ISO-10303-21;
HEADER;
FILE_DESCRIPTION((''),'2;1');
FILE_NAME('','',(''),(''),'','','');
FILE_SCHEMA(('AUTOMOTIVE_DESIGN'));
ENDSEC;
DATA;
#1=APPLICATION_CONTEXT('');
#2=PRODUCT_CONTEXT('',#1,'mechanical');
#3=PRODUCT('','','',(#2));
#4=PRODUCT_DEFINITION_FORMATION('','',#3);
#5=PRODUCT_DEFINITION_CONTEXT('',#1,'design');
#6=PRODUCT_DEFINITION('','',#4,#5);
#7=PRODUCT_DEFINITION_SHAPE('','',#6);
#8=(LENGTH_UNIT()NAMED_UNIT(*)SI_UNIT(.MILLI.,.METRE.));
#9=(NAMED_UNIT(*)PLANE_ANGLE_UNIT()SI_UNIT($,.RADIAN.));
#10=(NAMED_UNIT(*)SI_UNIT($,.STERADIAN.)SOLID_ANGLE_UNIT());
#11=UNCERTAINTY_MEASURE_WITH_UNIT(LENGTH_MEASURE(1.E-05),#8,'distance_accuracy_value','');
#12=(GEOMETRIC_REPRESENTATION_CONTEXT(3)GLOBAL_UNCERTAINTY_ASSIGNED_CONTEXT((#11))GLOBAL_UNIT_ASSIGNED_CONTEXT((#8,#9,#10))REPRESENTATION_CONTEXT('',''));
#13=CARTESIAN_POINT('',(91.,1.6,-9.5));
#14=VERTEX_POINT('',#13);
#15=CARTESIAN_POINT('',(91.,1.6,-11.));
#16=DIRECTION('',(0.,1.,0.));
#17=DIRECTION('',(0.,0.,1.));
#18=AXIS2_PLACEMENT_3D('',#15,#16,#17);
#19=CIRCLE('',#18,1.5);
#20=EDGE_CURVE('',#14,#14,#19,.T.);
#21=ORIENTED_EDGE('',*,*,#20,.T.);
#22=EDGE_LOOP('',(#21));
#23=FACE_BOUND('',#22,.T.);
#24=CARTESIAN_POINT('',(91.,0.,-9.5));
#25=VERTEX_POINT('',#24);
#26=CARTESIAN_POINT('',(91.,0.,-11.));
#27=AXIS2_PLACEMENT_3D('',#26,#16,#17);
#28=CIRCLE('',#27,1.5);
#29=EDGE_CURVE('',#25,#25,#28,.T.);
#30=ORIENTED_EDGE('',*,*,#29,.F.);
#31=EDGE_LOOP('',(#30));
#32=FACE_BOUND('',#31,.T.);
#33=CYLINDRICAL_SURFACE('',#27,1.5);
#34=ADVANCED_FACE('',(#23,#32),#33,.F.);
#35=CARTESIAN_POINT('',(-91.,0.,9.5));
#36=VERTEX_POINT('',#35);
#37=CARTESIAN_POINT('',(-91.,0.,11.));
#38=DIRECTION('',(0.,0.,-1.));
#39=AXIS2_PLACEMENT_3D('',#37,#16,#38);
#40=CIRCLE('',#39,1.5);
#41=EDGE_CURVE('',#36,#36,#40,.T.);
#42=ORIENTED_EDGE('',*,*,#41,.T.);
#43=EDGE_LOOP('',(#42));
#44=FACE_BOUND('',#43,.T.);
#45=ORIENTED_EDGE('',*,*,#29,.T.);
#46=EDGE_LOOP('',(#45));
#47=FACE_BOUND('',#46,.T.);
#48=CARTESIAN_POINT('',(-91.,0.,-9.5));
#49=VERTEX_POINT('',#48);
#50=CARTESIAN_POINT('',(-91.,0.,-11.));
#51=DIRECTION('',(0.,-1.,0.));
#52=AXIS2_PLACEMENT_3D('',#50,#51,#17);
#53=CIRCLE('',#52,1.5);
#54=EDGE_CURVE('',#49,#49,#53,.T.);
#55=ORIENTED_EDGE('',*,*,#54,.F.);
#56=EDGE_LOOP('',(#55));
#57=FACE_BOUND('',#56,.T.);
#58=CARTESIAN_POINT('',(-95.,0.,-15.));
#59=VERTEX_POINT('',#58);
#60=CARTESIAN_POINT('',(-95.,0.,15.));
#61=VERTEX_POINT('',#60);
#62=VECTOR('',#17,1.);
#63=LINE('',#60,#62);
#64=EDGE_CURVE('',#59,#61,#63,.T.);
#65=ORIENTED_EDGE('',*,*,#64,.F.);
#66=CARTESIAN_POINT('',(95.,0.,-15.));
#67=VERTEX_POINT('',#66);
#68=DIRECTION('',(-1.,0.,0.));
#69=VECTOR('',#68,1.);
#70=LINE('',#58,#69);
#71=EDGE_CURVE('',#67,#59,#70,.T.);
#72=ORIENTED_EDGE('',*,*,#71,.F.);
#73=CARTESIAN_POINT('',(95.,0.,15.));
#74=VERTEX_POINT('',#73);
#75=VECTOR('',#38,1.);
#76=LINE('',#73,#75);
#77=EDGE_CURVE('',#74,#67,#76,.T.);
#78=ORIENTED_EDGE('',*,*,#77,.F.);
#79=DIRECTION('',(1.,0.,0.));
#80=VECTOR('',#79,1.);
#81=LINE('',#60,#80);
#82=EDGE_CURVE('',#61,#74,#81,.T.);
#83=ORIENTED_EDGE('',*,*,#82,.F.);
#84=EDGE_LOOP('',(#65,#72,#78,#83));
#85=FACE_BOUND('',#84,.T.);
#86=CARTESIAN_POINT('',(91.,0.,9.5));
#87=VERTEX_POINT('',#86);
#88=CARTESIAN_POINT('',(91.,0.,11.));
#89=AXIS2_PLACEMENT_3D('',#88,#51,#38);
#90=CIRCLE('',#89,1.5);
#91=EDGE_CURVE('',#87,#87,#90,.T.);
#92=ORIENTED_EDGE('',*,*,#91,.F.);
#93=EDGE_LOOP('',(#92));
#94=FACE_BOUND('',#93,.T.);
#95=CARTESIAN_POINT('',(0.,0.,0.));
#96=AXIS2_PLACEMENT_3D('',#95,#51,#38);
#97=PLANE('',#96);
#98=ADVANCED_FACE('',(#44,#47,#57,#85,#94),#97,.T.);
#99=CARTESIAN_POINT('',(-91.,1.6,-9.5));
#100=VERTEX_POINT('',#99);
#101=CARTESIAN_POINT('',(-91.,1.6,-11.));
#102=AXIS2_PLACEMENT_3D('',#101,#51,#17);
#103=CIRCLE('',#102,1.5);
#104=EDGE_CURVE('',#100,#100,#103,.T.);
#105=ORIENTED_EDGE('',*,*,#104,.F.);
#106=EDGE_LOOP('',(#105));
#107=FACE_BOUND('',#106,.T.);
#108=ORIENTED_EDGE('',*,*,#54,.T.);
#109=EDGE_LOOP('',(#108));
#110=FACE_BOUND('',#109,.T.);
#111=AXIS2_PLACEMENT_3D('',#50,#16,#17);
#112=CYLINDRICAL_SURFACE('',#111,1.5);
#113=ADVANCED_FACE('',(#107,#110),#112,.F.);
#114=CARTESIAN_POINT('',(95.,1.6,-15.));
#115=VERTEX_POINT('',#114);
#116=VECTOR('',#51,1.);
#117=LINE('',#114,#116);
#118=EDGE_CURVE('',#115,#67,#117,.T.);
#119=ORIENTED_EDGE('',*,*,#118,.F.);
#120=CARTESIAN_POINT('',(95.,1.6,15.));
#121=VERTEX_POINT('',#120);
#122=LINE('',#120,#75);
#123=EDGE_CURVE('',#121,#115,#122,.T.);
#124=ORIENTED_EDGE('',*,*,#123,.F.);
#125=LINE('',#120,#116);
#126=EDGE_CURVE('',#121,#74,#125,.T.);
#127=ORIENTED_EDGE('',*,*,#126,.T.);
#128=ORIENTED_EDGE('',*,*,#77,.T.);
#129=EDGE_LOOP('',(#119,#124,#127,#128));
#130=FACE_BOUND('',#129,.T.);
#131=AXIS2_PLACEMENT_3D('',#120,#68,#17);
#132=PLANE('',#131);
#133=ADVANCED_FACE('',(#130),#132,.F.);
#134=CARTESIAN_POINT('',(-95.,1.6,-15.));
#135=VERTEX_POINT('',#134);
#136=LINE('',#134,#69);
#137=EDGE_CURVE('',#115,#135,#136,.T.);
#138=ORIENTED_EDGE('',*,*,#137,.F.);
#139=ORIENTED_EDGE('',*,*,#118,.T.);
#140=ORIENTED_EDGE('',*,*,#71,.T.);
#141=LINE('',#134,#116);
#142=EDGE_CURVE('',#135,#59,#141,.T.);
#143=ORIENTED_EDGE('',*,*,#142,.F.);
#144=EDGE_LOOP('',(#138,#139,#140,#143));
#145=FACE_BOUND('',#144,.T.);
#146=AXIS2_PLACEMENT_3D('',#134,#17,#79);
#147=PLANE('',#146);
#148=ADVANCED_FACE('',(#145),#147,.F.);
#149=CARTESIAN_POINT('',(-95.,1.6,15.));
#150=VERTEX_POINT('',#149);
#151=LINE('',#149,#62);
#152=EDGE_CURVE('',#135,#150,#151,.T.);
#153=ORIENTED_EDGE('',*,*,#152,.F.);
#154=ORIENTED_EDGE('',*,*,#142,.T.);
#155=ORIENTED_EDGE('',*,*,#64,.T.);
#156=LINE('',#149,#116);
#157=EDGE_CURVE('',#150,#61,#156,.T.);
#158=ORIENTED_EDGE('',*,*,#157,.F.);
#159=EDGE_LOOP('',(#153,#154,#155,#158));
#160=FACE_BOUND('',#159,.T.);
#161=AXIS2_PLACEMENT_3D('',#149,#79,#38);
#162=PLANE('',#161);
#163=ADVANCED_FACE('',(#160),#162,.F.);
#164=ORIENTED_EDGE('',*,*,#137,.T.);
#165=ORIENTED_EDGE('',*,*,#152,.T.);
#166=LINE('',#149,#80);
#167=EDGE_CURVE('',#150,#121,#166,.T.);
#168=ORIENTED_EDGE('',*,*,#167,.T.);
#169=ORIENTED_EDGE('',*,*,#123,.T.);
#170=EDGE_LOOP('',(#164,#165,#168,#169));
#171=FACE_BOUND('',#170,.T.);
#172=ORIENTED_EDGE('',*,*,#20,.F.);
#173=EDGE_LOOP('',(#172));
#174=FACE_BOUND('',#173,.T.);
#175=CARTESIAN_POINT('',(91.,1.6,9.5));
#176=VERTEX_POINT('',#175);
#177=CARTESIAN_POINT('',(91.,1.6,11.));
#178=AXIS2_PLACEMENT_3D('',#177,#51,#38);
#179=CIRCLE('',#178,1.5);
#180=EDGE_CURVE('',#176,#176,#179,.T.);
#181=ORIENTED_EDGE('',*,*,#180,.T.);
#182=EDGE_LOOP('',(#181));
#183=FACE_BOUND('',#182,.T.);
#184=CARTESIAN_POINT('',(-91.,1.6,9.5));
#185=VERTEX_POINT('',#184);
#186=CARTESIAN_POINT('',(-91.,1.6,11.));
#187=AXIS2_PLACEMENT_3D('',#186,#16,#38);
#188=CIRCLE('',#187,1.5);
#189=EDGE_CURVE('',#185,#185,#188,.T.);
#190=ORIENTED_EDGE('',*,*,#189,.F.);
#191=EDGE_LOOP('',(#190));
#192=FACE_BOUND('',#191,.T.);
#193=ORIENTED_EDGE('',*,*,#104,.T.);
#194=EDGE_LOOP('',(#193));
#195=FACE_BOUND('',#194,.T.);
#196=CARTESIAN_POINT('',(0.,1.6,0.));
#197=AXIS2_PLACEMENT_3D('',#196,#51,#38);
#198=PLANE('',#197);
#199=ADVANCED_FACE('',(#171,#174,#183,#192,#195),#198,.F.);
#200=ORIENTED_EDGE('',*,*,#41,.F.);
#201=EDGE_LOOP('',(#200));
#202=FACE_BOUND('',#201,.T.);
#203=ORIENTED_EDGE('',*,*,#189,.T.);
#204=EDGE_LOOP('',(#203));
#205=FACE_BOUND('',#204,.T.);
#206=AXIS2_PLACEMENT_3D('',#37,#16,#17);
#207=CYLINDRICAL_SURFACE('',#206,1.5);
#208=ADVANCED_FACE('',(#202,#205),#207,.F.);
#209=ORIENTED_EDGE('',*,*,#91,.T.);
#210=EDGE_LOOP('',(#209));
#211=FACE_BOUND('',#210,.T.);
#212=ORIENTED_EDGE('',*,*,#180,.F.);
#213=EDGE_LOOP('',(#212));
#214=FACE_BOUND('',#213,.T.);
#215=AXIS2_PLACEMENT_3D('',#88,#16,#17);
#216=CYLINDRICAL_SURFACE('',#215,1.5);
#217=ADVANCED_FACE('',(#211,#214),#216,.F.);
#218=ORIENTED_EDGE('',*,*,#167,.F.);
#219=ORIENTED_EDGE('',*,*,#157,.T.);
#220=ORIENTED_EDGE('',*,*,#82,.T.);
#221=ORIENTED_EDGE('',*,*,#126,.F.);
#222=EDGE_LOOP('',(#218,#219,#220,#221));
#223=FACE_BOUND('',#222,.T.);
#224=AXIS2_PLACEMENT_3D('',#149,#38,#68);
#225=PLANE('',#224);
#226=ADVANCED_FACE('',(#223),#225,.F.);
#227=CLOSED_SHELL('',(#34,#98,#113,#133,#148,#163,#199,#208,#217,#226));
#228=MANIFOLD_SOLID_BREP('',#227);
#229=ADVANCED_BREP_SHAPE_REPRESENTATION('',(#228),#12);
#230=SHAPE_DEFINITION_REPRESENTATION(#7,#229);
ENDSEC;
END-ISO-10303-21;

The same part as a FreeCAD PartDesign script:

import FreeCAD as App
import Part
import Sketcher
from FreeCAD import Vector

doc = App.newDocument("Part")
params = doc.addObject("Spreadsheet::Sheet", "Params")
for row, (alias, value) in enumerate([
    ("sketch1_width", "190 mm"),
    ("sketch1_height", "30 mm"),
    ("pad1_length", "1.6 mm"),
    ("sketch2_diameter", "3 mm"),
    ("pocket1_length", "1.6 mm"),
    ("sketch3_diameter", "3 mm"),
    ("pocket2_length", "1.6 mm"),
], start=1):
    params.set(f"A{row}", alias)
    params.set(f"B{row}", "=" + value)
    params.setAlias(f"B{row}", alias)

body = doc.addObject("PartDesign::Body", "Body")

# Sketch on XZ plane
sketch1 = body.newObject("Sketcher::SketchObject", "Sketch")
sketch1.AttachmentSupport = (doc.getObject("XZ_Plane"), [""])
sketch1.MapMode = "FlatFace"
sketch1.addGeometry([
    Part.LineSegment(Vector(-95, -15, 0), Vector(-95, 15, 0)),
    Part.LineSegment(Vector(-95, 15, 0), Vector(95, 15, 0)),
    Part.LineSegment(Vector(95, 15, 0), Vector(95, -15, 0)),
    Part.LineSegment(Vector(95, -15, 0), Vector(-95, -15, 0)),
], False)
sketch1.addConstraint([
    Sketcher.Constraint("Coincident", 0, 2, 1, 1),
    Sketcher.Constraint("Coincident", 1, 2, 2, 1),
    Sketcher.Constraint("Coincident", 2, 2, 3, 1),
    Sketcher.Constraint("Coincident", 3, 2, 0, 1),
    Sketcher.Constraint("Vertical", 0),
    Sketcher.Constraint("Horizontal", 1),
    Sketcher.Constraint("Vertical", 2),
    Sketcher.Constraint("Horizontal", 3),
    Sketcher.Constraint("Symmetric", 0, 2, 2, 2, -1, 1),
    Sketcher.Constraint("DistanceX", 1, 1, 1, 2, 190.0),
    Sketcher.Constraint("DistanceY", 0, 1, 0, 2, 30.0),
])
sketch1.setExpression("Constraints[9]", "Params.sketch1_width")
sketch1.setExpression("Constraints[10]", "Params.sketch1_height")
pad1 = body.newObject("PartDesign::Pad", "Pad")
pad1.Profile = sketch1
pad1.setExpression("Length", "Params.pad1_length")
pad1.Reversed = True

# Sketch on XZ plane
sketch2 = body.newObject("Sketcher::SketchObject", "Sketch001")
sketch2.AttachmentSupport = (doc.getObject("XZ_Plane"), [""])
sketch2.MapMode = "FlatFace"
sketch2.AttachmentOffset = App.Placement(Vector(0, 0, -1.6), App.Rotation())
sketch2.addGeometry(Part.Circle(Vector(91, -11, 0), Vector(0, 0, 1), 1.5), False)
sketch2.addConstraint([
    Sketcher.Constraint("Diameter", 0, 3.0),
    Sketcher.Constraint("DistanceX", -1, 1, 0, 3, 91.0),
    Sketcher.Constraint("DistanceY", 0, 3, -1, 1, 11.0),
])
sketch2.setExpression("Constraints[0]", "Params.sketch2_diameter")
pocket1 = body.newObject("PartDesign::Pocket", "Pocket")
pocket1.Profile = sketch2
pocket1.setExpression("Length", "Params.pocket1_length")
pocket1.Reversed = True
doc.recompute()

mirrored = body.newObject("PartDesign::Mirrored", "Mirrored")
mirrored.Originals = [pocket1]
mirrored.MirrorPlane = (doc.getObject("XY_Plane"), [""])
body.Tip = mirrored
doc.recompute()

mirrored2 = body.newObject("PartDesign::Mirrored", "Mirrored001")
mirrored2.Originals = [pocket1]
mirrored2.MirrorPlane = (doc.getObject("YZ_Plane"), [""])
body.Tip = mirrored2

# Sketch on XZ plane
sketch3 = body.newObject("Sketcher::SketchObject", "Sketch002")
sketch3.AttachmentSupport = (doc.getObject("XZ_Plane"), [""])
sketch3.MapMode = "FlatFace"
sketch3.AttachmentOffset = App.Placement(Vector(0, 0, -1.6), App.Rotation())
sketch3.addGeometry(Part.Circle(Vector(-91, 11, 0), Vector(0, 0, 1), 1.5), False)
sketch3.addConstraint([
    Sketcher.Constraint("Diameter", 0, 3.0),
    Sketcher.Constraint("DistanceX", 0, 3, -1, 1, 91.0),
    Sketcher.Constraint("DistanceY", -1, 1, 0, 3, 11.0),
])
sketch3.setExpression("Constraints[0]", "Params.sketch3_diameter")
pocket2 = body.newObject("PartDesign::Pocket", "Pocket001")
pocket2.Profile = sketch3
pocket2.setExpression("Length", "Params.pocket2_length")
pocket2.Reversed = True

doc.recompute()
